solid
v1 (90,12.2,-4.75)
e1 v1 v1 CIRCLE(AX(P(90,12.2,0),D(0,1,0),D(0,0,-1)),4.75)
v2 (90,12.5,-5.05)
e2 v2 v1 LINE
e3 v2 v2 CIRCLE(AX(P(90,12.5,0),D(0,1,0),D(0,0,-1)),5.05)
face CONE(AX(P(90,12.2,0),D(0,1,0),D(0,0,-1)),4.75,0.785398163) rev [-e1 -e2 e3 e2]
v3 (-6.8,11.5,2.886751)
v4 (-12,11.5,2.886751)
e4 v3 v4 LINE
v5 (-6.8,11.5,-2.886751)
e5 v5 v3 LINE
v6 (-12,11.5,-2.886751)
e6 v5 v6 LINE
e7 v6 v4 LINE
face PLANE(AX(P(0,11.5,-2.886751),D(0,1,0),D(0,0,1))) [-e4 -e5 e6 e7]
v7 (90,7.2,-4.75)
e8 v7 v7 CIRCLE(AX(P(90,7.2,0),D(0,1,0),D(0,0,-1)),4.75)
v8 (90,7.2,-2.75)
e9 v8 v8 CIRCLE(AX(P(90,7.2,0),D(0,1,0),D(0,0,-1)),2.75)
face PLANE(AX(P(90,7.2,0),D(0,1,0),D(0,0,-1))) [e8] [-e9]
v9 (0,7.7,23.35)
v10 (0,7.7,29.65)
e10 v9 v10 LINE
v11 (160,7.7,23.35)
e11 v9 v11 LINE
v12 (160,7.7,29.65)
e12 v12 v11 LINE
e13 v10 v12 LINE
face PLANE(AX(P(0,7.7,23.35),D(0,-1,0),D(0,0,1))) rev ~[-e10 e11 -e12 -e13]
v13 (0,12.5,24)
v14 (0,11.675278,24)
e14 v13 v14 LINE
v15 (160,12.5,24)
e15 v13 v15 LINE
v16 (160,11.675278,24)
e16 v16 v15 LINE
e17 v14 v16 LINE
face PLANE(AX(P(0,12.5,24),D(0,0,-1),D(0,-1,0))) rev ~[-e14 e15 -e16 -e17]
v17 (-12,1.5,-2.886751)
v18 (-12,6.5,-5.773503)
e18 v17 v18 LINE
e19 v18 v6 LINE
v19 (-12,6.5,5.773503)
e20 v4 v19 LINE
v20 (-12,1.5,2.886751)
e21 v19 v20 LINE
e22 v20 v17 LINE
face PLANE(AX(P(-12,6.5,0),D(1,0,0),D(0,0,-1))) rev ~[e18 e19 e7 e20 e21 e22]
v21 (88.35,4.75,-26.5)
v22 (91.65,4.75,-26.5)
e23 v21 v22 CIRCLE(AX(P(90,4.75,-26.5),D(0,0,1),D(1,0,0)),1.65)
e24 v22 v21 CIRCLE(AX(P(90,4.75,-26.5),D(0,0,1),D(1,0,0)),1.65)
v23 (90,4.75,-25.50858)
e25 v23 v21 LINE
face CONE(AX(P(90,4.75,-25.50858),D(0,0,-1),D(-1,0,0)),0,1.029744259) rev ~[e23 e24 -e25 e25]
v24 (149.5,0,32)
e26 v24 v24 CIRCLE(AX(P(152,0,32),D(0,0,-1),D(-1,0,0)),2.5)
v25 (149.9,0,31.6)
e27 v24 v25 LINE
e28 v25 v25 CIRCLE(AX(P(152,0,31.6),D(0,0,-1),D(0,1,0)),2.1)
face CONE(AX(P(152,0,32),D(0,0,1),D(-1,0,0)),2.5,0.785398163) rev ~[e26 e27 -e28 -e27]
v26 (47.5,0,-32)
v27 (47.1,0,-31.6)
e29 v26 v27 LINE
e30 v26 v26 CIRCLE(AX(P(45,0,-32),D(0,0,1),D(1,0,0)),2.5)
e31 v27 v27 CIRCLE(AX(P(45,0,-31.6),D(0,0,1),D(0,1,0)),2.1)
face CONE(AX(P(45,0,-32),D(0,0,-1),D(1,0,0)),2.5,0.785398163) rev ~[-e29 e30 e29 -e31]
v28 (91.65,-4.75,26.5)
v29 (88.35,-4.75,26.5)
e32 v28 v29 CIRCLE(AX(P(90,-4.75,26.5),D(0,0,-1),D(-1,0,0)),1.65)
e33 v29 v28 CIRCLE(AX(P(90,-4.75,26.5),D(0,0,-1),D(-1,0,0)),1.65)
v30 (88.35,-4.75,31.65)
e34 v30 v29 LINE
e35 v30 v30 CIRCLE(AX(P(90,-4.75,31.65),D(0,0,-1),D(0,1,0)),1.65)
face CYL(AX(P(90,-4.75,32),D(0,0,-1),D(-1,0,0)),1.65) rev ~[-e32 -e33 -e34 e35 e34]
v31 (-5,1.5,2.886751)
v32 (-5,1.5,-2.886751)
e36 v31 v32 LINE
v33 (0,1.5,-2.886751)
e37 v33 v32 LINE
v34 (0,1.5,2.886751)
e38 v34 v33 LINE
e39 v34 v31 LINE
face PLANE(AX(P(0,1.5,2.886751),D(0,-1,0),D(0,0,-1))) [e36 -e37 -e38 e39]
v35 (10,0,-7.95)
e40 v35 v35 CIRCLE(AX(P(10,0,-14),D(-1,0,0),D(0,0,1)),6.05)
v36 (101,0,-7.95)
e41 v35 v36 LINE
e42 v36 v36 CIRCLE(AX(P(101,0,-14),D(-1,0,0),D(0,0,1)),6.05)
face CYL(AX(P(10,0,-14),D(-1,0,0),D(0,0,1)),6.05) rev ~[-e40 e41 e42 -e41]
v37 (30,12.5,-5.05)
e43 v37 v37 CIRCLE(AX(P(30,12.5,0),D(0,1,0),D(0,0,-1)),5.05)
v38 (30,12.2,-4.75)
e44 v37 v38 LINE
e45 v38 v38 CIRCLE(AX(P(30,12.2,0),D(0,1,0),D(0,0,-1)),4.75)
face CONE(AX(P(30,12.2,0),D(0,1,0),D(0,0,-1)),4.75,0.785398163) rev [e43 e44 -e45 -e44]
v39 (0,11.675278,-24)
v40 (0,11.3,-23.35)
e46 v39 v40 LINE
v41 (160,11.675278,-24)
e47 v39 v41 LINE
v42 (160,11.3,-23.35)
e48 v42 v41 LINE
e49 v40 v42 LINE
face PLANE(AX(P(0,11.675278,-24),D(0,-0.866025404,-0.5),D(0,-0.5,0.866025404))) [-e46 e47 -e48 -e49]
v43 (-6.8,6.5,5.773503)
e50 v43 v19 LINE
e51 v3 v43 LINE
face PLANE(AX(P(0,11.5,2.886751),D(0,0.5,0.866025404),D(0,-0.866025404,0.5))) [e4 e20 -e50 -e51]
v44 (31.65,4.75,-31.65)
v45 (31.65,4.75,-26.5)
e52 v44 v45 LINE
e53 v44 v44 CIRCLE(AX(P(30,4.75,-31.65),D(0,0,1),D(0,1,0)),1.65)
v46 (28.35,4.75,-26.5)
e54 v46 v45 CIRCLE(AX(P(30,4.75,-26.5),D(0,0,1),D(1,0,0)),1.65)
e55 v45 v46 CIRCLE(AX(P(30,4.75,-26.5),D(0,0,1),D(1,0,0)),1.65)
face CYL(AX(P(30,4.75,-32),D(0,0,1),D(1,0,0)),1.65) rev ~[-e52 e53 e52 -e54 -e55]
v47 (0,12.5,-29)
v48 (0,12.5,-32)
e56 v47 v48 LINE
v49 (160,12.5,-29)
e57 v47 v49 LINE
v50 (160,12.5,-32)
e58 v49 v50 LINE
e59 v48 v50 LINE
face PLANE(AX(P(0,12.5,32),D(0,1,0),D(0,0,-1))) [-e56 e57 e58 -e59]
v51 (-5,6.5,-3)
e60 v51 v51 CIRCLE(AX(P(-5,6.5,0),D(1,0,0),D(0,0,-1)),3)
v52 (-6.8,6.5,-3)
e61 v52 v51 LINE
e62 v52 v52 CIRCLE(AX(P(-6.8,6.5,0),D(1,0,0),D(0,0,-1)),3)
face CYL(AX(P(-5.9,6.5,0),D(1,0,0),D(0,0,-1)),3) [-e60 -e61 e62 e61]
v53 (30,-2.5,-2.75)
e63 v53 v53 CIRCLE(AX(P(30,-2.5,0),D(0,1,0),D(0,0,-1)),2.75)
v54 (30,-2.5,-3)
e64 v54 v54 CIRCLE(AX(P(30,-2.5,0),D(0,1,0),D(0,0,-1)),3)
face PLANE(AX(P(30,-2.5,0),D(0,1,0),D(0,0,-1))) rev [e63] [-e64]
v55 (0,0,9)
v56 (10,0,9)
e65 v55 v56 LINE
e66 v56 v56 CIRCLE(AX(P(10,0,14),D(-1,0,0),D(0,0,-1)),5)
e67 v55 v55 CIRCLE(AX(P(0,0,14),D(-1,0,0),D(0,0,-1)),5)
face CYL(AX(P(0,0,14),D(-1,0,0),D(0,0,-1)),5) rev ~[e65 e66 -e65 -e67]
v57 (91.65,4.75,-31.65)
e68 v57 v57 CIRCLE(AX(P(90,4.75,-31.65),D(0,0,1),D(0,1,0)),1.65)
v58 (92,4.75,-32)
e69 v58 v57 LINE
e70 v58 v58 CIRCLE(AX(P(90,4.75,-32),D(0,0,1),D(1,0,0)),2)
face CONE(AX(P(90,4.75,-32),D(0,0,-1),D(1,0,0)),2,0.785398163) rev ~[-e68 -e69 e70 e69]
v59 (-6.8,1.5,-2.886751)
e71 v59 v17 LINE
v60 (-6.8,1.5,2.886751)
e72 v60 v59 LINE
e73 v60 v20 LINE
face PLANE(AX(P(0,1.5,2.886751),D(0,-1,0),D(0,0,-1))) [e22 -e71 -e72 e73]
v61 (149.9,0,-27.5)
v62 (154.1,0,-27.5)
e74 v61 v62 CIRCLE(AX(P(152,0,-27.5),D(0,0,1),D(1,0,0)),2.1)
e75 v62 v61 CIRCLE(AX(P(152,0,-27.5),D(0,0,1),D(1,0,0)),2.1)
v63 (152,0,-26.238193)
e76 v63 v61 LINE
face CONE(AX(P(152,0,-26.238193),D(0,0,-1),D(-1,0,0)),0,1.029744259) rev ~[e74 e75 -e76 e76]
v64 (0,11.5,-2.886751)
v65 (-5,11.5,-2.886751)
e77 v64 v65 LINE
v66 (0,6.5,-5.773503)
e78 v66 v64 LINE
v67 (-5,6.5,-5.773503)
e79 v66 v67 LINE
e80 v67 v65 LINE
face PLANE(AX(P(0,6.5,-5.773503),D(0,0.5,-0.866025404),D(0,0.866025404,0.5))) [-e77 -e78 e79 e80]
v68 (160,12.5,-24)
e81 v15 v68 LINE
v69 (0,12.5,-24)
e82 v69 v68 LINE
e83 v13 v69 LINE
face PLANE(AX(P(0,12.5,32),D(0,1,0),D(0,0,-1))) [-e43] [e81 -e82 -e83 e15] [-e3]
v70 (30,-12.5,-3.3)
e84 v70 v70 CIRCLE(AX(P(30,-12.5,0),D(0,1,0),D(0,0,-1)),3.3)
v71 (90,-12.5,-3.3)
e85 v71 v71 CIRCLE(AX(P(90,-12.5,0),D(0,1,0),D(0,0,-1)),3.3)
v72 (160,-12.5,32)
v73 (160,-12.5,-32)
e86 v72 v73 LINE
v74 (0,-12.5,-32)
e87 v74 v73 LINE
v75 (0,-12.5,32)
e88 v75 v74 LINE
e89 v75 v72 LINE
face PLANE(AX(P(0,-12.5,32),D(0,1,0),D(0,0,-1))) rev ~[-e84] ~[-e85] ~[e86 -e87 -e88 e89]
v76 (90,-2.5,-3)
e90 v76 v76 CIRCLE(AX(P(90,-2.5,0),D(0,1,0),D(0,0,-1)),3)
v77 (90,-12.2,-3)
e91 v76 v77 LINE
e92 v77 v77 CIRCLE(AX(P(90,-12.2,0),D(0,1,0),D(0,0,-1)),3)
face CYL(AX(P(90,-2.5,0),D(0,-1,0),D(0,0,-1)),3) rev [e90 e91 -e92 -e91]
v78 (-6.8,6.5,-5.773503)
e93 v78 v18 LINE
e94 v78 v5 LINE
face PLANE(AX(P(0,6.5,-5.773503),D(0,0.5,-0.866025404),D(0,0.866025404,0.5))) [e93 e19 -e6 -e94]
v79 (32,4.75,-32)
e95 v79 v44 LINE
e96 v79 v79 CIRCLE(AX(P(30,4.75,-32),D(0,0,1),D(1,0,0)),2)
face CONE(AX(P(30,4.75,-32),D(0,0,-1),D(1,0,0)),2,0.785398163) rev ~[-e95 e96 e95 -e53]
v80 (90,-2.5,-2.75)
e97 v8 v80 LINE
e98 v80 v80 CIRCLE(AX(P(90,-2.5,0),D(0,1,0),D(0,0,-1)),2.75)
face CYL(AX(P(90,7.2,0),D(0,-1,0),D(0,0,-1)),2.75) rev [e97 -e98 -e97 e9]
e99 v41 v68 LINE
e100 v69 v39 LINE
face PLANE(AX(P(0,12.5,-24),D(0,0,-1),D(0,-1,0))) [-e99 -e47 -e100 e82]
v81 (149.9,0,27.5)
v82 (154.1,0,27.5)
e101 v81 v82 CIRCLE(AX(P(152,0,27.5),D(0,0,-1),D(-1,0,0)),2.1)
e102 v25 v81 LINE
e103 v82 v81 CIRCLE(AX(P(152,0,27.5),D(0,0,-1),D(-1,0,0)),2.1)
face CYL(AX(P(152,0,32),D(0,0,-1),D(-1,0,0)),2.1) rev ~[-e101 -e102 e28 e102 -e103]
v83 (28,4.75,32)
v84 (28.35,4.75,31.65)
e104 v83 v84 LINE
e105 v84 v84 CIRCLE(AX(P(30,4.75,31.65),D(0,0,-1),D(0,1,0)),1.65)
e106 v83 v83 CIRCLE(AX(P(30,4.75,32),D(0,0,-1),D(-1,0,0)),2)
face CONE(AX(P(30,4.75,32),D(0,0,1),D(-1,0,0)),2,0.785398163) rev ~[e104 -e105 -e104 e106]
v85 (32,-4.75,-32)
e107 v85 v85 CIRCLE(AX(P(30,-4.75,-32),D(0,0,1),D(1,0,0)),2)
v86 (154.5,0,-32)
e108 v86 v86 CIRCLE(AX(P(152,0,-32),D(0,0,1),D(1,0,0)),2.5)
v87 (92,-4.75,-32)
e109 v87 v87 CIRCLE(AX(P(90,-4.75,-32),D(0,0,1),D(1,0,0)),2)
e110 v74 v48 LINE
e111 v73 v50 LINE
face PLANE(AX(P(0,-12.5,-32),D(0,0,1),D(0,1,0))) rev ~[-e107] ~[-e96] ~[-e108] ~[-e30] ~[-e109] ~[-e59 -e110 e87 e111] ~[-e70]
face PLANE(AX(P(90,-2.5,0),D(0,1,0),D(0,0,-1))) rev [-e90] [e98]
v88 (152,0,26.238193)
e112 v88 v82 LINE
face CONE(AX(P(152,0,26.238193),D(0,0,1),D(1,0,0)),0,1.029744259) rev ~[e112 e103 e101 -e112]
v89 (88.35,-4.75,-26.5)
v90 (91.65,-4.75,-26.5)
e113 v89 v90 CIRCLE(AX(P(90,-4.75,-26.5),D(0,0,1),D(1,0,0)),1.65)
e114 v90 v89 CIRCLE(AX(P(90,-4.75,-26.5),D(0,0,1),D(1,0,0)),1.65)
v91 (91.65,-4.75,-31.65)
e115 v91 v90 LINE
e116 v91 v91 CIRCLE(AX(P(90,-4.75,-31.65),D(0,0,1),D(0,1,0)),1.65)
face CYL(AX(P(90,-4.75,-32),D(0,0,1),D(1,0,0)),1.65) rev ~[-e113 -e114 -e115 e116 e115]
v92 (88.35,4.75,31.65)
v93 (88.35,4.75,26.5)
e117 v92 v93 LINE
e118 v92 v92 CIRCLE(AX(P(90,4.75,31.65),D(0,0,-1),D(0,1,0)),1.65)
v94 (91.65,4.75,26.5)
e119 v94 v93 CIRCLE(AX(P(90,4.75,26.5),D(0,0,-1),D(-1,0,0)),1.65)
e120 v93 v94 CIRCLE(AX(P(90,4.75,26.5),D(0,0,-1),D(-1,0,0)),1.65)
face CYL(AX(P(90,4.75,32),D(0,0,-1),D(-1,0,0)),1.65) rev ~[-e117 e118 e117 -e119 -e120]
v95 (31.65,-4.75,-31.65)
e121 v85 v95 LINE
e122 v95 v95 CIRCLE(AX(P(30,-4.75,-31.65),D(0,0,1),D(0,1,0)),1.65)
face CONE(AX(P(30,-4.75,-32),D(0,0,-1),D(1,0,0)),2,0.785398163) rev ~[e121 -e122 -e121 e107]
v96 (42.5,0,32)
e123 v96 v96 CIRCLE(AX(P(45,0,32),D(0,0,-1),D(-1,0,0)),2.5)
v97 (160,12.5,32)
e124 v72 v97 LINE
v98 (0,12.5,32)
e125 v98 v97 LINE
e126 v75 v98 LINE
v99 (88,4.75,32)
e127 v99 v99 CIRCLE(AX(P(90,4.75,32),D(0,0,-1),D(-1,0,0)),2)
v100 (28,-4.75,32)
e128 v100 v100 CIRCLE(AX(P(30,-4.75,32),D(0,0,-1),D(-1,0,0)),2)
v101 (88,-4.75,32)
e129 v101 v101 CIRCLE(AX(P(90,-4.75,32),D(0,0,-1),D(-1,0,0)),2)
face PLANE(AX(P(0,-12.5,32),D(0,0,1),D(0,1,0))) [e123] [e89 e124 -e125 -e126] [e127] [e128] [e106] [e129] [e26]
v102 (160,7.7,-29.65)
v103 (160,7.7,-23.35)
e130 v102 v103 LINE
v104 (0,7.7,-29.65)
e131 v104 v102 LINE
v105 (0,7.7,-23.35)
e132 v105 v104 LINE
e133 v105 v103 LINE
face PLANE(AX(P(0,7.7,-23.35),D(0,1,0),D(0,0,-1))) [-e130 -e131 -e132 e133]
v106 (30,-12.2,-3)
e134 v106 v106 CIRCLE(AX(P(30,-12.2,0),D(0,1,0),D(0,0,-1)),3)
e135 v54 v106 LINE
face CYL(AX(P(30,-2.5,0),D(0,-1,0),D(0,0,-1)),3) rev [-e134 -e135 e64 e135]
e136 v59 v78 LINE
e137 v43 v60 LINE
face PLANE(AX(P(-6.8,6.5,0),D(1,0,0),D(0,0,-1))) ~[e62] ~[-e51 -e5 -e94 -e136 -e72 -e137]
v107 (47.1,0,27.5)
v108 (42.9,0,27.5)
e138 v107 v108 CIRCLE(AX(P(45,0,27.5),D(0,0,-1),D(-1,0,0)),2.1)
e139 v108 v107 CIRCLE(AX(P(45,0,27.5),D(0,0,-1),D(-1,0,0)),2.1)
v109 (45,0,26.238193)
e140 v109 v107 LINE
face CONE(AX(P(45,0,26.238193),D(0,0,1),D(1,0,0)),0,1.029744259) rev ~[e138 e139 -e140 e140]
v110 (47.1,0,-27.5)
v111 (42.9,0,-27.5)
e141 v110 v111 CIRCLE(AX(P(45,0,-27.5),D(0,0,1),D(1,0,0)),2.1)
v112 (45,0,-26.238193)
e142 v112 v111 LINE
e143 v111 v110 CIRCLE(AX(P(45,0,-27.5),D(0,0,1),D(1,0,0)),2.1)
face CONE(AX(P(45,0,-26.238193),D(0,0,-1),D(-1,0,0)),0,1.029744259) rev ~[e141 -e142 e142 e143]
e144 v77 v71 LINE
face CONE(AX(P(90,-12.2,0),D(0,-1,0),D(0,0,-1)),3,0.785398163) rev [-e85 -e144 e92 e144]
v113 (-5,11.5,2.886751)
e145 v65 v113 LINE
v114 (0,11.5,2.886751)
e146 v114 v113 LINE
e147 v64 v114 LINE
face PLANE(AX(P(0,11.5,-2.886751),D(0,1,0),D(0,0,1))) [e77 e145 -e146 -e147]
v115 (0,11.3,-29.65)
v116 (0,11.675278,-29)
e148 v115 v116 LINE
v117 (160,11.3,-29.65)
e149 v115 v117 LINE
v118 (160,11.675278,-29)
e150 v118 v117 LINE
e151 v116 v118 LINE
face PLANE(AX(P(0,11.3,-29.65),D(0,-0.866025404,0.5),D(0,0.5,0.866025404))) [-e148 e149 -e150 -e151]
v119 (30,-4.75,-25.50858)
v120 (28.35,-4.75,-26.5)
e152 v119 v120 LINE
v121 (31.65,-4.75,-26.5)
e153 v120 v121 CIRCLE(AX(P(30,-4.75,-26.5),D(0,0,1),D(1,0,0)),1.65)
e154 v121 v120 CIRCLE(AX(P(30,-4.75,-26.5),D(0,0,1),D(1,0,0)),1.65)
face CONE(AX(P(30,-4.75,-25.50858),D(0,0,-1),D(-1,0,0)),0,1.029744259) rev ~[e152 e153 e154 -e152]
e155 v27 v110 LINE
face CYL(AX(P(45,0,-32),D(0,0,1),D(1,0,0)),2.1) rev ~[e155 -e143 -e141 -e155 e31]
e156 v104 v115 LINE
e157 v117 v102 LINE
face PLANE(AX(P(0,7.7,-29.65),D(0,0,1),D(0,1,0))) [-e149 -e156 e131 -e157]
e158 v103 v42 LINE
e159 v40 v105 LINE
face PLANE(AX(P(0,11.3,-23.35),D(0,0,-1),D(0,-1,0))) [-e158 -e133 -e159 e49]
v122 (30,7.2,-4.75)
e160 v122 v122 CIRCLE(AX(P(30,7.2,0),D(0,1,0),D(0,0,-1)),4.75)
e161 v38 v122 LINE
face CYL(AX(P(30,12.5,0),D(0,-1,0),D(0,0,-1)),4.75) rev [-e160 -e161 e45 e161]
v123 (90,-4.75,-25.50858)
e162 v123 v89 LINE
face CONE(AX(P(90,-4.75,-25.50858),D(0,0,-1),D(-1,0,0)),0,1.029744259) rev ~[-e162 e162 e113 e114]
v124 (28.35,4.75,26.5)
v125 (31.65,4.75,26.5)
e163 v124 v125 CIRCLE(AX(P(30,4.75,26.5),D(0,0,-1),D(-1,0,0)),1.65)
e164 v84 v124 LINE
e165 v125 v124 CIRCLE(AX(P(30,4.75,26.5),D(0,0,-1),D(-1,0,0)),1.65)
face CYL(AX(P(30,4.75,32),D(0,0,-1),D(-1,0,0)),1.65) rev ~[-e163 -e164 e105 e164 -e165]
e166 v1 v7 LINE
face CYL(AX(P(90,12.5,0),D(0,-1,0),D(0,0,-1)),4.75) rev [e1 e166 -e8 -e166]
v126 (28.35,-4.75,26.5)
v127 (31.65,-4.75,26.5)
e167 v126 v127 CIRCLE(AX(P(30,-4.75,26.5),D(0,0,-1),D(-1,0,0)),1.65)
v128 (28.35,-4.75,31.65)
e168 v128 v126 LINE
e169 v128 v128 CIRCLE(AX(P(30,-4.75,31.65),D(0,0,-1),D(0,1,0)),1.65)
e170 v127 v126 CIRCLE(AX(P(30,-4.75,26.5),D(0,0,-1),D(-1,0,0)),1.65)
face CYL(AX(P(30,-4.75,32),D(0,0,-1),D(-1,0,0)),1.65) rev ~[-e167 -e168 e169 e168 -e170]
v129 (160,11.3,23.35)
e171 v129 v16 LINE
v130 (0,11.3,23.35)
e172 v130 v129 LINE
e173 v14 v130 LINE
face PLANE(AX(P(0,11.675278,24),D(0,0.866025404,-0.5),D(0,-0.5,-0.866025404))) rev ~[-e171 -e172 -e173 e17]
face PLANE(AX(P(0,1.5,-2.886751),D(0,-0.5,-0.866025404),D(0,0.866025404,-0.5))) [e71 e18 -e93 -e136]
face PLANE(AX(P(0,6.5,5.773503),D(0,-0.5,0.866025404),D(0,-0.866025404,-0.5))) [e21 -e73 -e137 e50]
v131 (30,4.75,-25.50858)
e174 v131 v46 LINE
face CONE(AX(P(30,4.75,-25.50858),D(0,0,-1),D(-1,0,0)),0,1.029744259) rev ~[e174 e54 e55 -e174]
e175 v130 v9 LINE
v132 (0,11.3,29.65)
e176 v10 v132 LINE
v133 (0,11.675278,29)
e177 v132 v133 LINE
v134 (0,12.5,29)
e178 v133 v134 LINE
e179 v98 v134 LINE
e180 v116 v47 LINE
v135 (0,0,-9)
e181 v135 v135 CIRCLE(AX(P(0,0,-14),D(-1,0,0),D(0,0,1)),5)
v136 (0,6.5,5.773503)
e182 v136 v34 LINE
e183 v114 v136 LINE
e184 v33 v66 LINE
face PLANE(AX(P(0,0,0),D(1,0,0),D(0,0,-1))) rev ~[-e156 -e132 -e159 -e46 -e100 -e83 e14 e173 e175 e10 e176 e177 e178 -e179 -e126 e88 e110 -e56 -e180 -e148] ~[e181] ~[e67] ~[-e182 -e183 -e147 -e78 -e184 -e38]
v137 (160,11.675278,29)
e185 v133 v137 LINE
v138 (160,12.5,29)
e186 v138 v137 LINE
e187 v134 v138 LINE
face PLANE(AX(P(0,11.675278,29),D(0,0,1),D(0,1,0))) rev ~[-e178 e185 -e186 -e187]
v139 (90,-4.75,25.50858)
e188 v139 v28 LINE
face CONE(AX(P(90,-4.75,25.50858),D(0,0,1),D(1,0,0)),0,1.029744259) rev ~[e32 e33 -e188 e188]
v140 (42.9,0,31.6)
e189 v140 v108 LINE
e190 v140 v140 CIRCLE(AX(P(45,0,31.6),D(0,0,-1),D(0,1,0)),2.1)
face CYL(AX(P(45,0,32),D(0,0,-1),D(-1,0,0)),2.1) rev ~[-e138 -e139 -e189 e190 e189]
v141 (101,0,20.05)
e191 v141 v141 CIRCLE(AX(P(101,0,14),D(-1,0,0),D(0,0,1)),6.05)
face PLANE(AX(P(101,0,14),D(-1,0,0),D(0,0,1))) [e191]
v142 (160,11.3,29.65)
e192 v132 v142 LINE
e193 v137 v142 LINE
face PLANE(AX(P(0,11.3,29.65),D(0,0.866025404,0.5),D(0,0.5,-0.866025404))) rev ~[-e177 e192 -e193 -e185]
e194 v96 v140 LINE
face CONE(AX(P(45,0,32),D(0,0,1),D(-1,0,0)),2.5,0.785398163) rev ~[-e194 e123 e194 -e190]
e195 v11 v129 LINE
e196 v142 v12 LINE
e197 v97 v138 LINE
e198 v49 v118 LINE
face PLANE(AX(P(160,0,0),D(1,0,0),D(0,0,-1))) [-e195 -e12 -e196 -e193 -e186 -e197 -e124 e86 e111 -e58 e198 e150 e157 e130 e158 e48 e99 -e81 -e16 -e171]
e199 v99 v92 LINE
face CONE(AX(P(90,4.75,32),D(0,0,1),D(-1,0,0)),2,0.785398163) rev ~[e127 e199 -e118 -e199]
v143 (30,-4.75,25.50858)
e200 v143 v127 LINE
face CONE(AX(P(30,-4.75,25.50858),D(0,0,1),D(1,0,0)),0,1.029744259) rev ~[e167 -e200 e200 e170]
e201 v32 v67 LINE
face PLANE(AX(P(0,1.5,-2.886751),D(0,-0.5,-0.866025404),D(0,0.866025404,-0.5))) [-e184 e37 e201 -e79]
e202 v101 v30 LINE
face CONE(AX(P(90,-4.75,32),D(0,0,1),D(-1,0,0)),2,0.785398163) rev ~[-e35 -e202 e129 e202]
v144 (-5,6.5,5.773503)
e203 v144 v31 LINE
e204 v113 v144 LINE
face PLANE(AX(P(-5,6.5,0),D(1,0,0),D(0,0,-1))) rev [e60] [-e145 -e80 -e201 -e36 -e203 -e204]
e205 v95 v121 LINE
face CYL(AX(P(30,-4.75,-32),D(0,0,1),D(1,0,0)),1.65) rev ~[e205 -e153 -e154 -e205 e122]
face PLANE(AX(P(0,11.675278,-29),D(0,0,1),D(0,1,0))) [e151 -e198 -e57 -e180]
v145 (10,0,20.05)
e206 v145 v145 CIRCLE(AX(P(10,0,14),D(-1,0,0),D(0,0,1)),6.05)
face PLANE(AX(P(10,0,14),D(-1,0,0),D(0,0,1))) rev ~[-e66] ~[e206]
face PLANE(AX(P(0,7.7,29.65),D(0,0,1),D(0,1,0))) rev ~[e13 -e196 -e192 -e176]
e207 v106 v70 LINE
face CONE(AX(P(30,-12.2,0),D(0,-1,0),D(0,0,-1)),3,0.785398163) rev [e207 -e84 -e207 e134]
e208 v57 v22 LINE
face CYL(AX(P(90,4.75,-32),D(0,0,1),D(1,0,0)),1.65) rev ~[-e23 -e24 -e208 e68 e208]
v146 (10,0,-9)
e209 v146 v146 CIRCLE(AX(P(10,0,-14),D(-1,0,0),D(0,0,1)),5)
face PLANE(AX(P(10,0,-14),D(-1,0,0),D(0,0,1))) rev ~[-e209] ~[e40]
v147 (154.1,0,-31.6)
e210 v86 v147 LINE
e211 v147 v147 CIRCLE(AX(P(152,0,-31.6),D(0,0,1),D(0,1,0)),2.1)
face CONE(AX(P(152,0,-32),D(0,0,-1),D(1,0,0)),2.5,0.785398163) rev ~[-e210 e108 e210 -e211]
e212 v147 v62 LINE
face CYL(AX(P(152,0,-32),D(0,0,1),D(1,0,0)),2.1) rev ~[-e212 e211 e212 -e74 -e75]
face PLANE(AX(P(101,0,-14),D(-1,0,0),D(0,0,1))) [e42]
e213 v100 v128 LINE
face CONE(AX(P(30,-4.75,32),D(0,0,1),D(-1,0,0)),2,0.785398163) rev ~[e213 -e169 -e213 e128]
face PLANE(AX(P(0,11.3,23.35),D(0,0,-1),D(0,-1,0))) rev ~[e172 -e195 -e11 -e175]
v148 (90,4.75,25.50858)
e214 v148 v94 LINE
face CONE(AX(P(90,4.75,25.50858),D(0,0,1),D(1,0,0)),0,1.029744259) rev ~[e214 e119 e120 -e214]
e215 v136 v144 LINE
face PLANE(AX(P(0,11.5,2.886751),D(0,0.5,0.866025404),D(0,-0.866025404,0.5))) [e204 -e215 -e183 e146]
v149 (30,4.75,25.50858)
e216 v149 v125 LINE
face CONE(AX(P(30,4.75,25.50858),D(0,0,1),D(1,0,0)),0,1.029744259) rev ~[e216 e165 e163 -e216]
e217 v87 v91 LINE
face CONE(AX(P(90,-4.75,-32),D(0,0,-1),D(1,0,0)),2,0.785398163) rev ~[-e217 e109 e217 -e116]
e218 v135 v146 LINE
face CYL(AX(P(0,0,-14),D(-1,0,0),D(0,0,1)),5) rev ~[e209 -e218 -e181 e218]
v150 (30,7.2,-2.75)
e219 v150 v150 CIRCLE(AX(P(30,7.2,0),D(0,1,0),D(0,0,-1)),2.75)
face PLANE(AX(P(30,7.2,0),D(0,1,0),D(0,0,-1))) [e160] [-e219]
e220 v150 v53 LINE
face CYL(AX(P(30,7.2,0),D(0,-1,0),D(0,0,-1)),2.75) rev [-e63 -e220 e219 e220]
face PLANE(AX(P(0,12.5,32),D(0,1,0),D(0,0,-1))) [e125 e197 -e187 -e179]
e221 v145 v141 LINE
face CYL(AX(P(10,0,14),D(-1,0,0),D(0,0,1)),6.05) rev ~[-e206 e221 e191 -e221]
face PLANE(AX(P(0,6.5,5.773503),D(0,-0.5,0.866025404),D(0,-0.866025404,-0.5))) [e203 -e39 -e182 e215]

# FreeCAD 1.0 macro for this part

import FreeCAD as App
import Part
import Sketcher
from FreeCAD import Vector
Q = App.Units.Quantity


def edges_at(feature, points):
    """Names of the edges that pass closest to the given points."""
    edges = feature.Shape.Edges
    near = lambda p: min(range(len(edges)), key=lambda i: edges[i].distToShape(Part.Vertex(*p))[0])
    return sorted({f"Edge{near(p) + 1}" for p in points})

doc = App.newDocument("Part")
params = doc.addObject("Spreadsheet::Sheet", "Params")
for row, (alias, value) in enumerate([
    ("sketch1_width", "25 mm"),
    ("sketch1_height", "64 mm"),
    ("pad1_length", "160 mm"),
    ("sketch2_diameter", "10 mm"),
    ("pocket1_length", "10 mm"),
    ("sketch3_diameter", "12.1 mm"),
    ("pocket2_length", "91 mm"),
    ("sketch4_height", "5 mm"),
    ("sketch4_width", "3.6 mm"),
    ("sketch4_height2", "6.3 mm"),
    ("sketch5_width", "2 mm"),
    ("sketch5_height", "25 mm"),
    ("sketch5_height2", "5.3 mm"),
    ("sketch5_width2", "4.75 mm"),
    ("groove_angle", "360 deg"),
    ("chamfer_size", "0.3 mm"),
    ("linearpattern_pitch", "60 mm"),
    ("chamfer2_size", "0.3 mm"),
    ("sketch6_width", "1 mm"),
    ("sketch6_width2", "9.7 mm"),
    ("sketch6_height", "3.3 mm"),
    ("sketch6_height2", "0.25 mm"),
    ("groove2_angle", "360 deg"),
    ("linearpattern2_pitch", "60 mm"),
    ("pad2_length", "12 mm"),
    ("sketch8_height", "25 mm"),
    ("sketch8_width", "1.8 mm"),
    ("groove3_angle", "360 deg"),
    ("sketch9_diameter", "4.2 mm"),
    ("hole_diameter", "4.2 mm"),
    ("hole_depth", "4.5 mm"),
    ("hole_csink_diameter", "5 mm"),
    ("sketch10_diameter", "4.2 mm"),
    ("hole2_diameter", "4.2 mm"),
    ("hole2_depth", "4.5 mm"),
    ("hole2_csink_diameter", "5 mm"),
    ("sketch11_diameter", "3.3 mm"),
    ("hole3_diameter", "3.3 mm"),
    ("hole3_depth", "5.5 mm"),
    ("hole3_csink_diameter", "4 mm"),
    ("sketch12_diameter", "3.3 mm"),
    ("hole4_diameter", "3.3 mm"),
    ("hole4_depth", "5.5 mm"),
    ("hole4_csink_diameter", "4 mm"),
    ("sketch13_diameter", "3.3 mm"),
    ("hole5_diameter", "3.3 mm"),
    ("hole5_depth", "5.5 mm"),
    ("hole5_csink_diameter", "4 mm"),
    ("sketch14_diameter", "3.3 mm"),
    ("hole6_diameter", "3.3 mm"),
    ("hole6_depth", "5.5 mm"),
    ("hole6_csink_diameter", "4 mm"),
], start=1):
    params.set(f"A{row}", alias)
    params.set(f"B{row}", "=" + value)
    params.setAlias(f"B{row}", alias)

body = doc.addObject("PartDesign::Body", "Body")

# Sketch on YZ plane
sketch1 = body.newObject("Sketcher::SketchObject", "Sketch")
sketch1.AttachmentSupport = (doc.getObject("YZ_Plane"), [""])
sketch1.MapMode = "FlatFace"
sketch1.addGeometry([
    Part.LineSegment(Vector(12, 32, 0), Vector(-12, 32, 0)),
    Part.LineSegment(Vector(-12, 32, 0), Vector(-12, -32, 0)),
    Part.LineSegment(Vector(-12, -32, 0), Vector(12, -32, 0)),
    Part.LineSegment(Vector(12, -32, 0), Vector(12, 32, 0)),
], False)
sketch1.addConstraint([
    Sketcher.Constraint("Coincident", 0, 2, 1, 1),
    Sketcher.Constraint("Coincident", 1, 2, 2, 1),
    Sketcher.Constraint("Coincident", 2, 2, 3, 1),
    Sketcher.Constraint("Coincident", 3, 2, 0, 1),
    Sketcher.Constraint("Horizontal", 0),
    Sketcher.Constraint("Vertical", 1),
    Sketcher.Constraint("Horizontal", 2),
    Sketcher.Constraint("Vertical", 3),
    Sketcher.Constraint("Symmetric", 0, 2, 2, 2, -1, 1),
    Sketcher.Constraint("DistanceX", 0, 2, 0, 1, Q("25 mm")),
    Sketcher.Constraint("DistanceY", 1, 2, 1, 1, Q("64 mm")),
])
sketch1.setExpression("Constraints[9]", "Params.sketch1_width")
sketch1.setExpression("Constraints[10]", "Params.sketch1_height")
pad1 = body.newObject("PartDesign::Pad", "Pad")
pad1.Profile = sketch1
pad1.setExpression("Length", "Params.pad1_length")

# Sketch on YZ plane
sketch2 = body.newObject("Sketcher::SketchObject", "Sketch001")
sketch2.AttachmentSupport = (doc.getObject("YZ_Plane"), [""])
sketch2.MapMode = "FlatFace"
sketch2.addGeometry([
    Part.Circle(Vector(0, -14, 0), Vector(0, 0, 1), 5),
    Part.Circle(Vector(0, 14, 0), Vector(0, 0, 1), 5),
], False)
sketch2.addConstraint([
    Sketcher.Constraint("Equal", 0, 1),
    Sketcher.Constraint("Symmetric", 0, 3, 1, 3, -1, 1),
    Sketcher.Constraint("PointOnObject", 0, 3, -2),
    Sketcher.Constraint("Diameter", 0, Q("10 mm")),
    Sketcher.Constraint("DistanceY", 0, 3, -1, 1, Q("14 mm")),
])
sketch2.setExpression("Constraints[3]", "Params.sketch2_diameter")
pocket1 = body.newObject("PartDesign::Pocket", "Pocket")
pocket1.Profile = sketch2
pocket1.setExpression("Length", "Params.pocket1_length")
pocket1.Reversed = True

# Sketch on YZ plane
sketch3 = body.newObject("Sketcher::SketchObject", "Sketch002")
sketch3.AttachmentSupport = (doc.getObject("YZ_Plane"), [""])
sketch3.MapMode = "FlatFace"
sketch3.AttachmentOffset = App.Placement(Vector(0, 0, 10), App.Rotation())
sketch3.addGeometry([
    Part.Circle(Vector(0, 14, 0), Vector(0, 0, 1), 6),
    Part.Circle(Vector(0, -14, 0), Vector(0, 0, 1), 6),
], False)
sketch3.addConstraint([
    Sketcher.Constraint("Equal", 0, 1),
    Sketcher.Constraint("Symmetric", 0, 3, 1, 3, -1, 1),
    Sketcher.Constraint("PointOnObject", 0, 3, -2),
    Sketcher.Constraint("Diameter", 0, Q("12.1 mm")),
    Sketcher.Constraint("DistanceY", -1, 1, 0, 3, Q("14 mm")),
])
sketch3.setExpression("Constraints[3]", "Params.sketch3_diameter")
pocket2 = body.newObject("PartDesign::Pocket", "Pocket001")
pocket2.Profile = sketch3
pocket2.setExpression("Length", "Params.pocket2_length")
pocket2.Reversed = True

# Sketch on YZ plane
sketch4 = body.newObject("Sketcher::SketchObject", "Sketch003")
sketch4.AttachmentSupport = (doc.getObject("YZ_Plane"), [""])
sketch4.MapMode = "FlatFace"
sketch4.addGeometry([
    Part.LineSegment(Vector(7.7, 23.4, 0), Vector(7.7, 29.6, 0)),  # 0
    Part.LineSegment(Vector(7.7, 29.6, 0), Vector(11.3, 29.6, 0)),  # 1
    Part.LineSegment(Vector(11.3, 29.6, 0), Vector(11.7, 29, 0)),  # 2
    Part.LineSegment(Vector(11.7, 29, 0), Vector(12.5, 29, 0)),  # 3
    Part.LineSegment(Vector(12.5, 29, 0), Vector(12.5, 24, 0)),  # 4
    Part.LineSegment(Vector(12.5, 24, 0), Vector(11.7, 24, 0)),  # 5
    Part.LineSegment(Vector(11.7, 24, 0), Vector(11.3, 23.4, 0)),  # 6
    Part.LineSegment(Vector(11.3, 23.4, 0), Vector(7.7, 23.4, 0)),  # 7
    Part.LineSegment(Vector(7.7, -23.4, 0), Vector(11.3, -23.4, 0)),  # 8
    Part.LineSegment(Vector(11.3, -23.4, 0), Vector(11.7, -24, 0)),  # 9
    Part.LineSegment(Vector(11.7, -24, 0), Vector(12.5, -24, 0)),  # 10
    Part.LineSegment(Vector(12.5, -24, 0), Vector(12.5, -29, 0)),  # 11
    Part.LineSegment(Vector(12.5, -29, 0), Vector(11.7, -29, 0)),  # 12
    Part.LineSegment(Vector(11.7, -29, 0), Vector(11.3, -29.6, 0)),  # 13
    Part.LineSegment(Vector(11.3, -29.6, 0), Vector(7.7, -29.6, 0)),  # 14
    Part.LineSegment(Vector(7.7, -29.6, 0), Vector(7.7, -23.4, 0)),  # 15
], False)
sketch4.addConstraint([
    Sketcher.Constraint("Coincident", 0, 2, 1, 1),
    Sketcher.Constraint("Coincident", 1, 2, 2, 1),
    Sketcher.Constraint("Coincident", 2, 2, 3, 1),
    Sketcher.Constraint("Coincident", 3, 2, 4, 1),
    Sketcher.Constraint("Coincident", 4, 2, 5, 1),
    Sketcher.Constraint("Coincident", 5, 2, 6, 1),
    Sketcher.Constraint("Coincident", 6, 2, 7, 1),
    Sketcher.Constraint("Coincident", 7, 2, 0, 1),
    Sketcher.Constraint("Coincident", 8, 2, 9, 1),
    Sketcher.Constraint("Coincident", 9, 2, 10, 1),
    Sketcher.Constraint("Coincident", 10, 2, 11, 1),
    Sketcher.Constraint("Coincident", 11, 2, 12, 1),
    Sketcher.Constraint("Coincident", 12, 2, 13, 1),
    Sketcher.Constraint("Coincident", 13, 2, 14, 1),
    Sketcher.Constraint("Coincident", 14, 2, 15, 1),
    Sketcher.Constraint("Coincident", 15, 2, 8, 1),
    Sketcher.Constraint("Vertical", 0),
    Sketcher.Constraint("Horizontal", 1),
    Sketcher.Constraint("Horizontal", 3),
    Sketcher.Constraint("Vertical", 4),
    Sketcher.Constraint("Horizontal", 5),
    Sketcher.Constraint("Horizontal", 7),
    Sketcher.Constraint("Horizontal", 8),
    Sketcher.Constraint("Horizontal", 10),
    Sketcher.Constraint("Vertical", 11),
    Sketcher.Constraint("Horizontal", 12),
    Sketcher.Constraint("Horizontal", 14),
    Sketcher.Constraint("Vertical", 15),
    Sketcher.Constraint("Symmetric", 6, 2, 8, 2, -1),
    Sketcher.Constraint("Symmetric", 5, 2, 9, 2, -1),
    Sketcher.Constraint("Symmetric", 3, 2, 11, 2, -1),
    Sketcher.Constraint("Symmetric", 1, 2, 13, 2, -1),
    Sketcher.Constraint("Parallel", 2, 9),
    Sketcher.Constraint("Parallel", 6, 13),
    Sketcher.Constraint("Vertical", 2, 2, 5, 2),
    Sketcher.Constraint("Vertical", 1, 2, 6, 2),
    Sketcher.Constraint("Vertical", 7, 2, 14, 2),
    Sketcher.Constraint("DistanceY", 4, 2, 4, 1, Q("5 mm")),
    Sketcher.Constraint("Angle", 2, Q("-60 deg")),
    Sketcher.Constraint("DistanceX", 1, 1, 1, 2, Q("3.6 mm")),
    Sketcher.Constraint("DistanceY", 0, 1, 0, 2, Q("6.3 mm")),
    Sketcher.Constraint("DistanceY", -1, 1, 2, 2, Q("29 mm")),
    Sketcher.Constraint("DistanceX", -1, 1, 0, 2, Q("7.7 mm")),
    Sketcher.Constraint("DistanceX", -1, 1, 3, 2, Q("12.5 mm")),
])
sketch4.setExpression("Constraints[37]", "Params.sketch4_height")
sketch4.setExpression("Constraints[39]", "Params.sketch4_width")
sketch4.setExpression("Constraints[40]", "Params.sketch4_height2")
pocket3 = body.newObject("PartDesign::Pocket", "Pocket002")
pocket3.Profile = sketch4
pocket3.Type = "ThroughAll"
pocket3.Reversed = True

# Sketch on XY plane
sketch5 = body.newObject("Sketcher::SketchObject", "Sketch004")
sketch5.AttachmentSupport = (doc.getObject("XY_Plane"), [""])
sketch5.MapMode = "FlatFace"
sketch5.addGeometry([
    Part.LineSegment(Vector(30, 12.5, 0), Vector(25.2, 12.5, 0)),  # 0
    Part.LineSegment(Vector(25.2, 12.5, 0), Vector(25.2, 7.2, 0)),  # 1
    Part.LineSegment(Vector(25.2, 7.2, 0), Vector(27.2, 7.2, 0)),  # 2
    Part.LineSegment(Vector(27.2, 7.2, 0), Vector(27.2, -12.5, 0)),  # 3
    Part.LineSegment(Vector(27.2, -12.5, 0), Vector(30, -12.5, 0)),  # 4
    Part.LineSegment(Vector(30, -12.5, 0), Vector(30, 12.5, 0)),  # 5
], False)
sketch5.addGeometry(Part.LineSegment(Vector(30, -12.5, 0), Vector(30, 12.5, 0)), True)  # axis
sketch5.addConstraint([
    Sketcher.Constraint("Coincident", 0, 2, 1, 1),
    Sketcher.Constraint("Coincident", 1, 2, 2, 1),
    Sketcher.Constraint("Coincident", 2, 2, 3, 1),
    Sketcher.Constraint("Coincident", 3, 2, 4, 1),
    Sketcher.Constraint("Coincident", 4, 2, 5, 1),
    Sketcher.Constraint("Coincident", 5, 2, 0, 1),
    Sketcher.Constraint("Horizontal", 0),
    Sketcher.Constraint("Vertical", 1),
    Sketcher.Constraint("Horizontal", 2),
    Sketcher.Constraint("Vertical", 3),
    Sketcher.Constraint("Horizontal", 4),
    Sketcher.Constraint("Vertical", 5),
    Sketcher.Constraint("Vertical", 6),
    Sketcher.Constraint("Coincident", 6, 1, 4, 2),
    Sketcher.Constraint("Horizontal", 0, 2, 6, 2),
    Sketcher.Constraint("DistanceX", 2, 1, 2, 2, Q("2 mm")),
    Sketcher.Constraint("DistanceY", 5, 1, 5, 2, Q("25 mm")),
    Sketcher.Constraint("DistanceY", 1, 2, 1, 1, Q("5.3 mm")),
    Sketcher.Constraint("DistanceX", -1, 1, 4, 2, Q("30 mm")),
    Sketcher.Constraint("DistanceX", 0, 2, 0, 1, Q("4.75 mm")),
    Sketcher.Constraint("DistanceY", -1, 1, 0, 2, Q("12.5 mm")),
])
sketch5.setExpression("Constraints[15]", "Params.sketch5_width")
sketch5.setExpression("Constraints[16]", "Params.sketch5_height")
sketch5.setExpression("Constraints[17]", "Params.sketch5_height2")
sketch5.setExpression("Constraints[19]", "Params.sketch5_width2")
groove = body.newObject("PartDesign::Groove", "Groove")
groove.Profile = sketch5
groove.ReferenceAxis = (sketch5, ["Axis0"])
groove.setExpression("Angle", "Params.groove_angle")
doc.recompute()

chamfer = body.newObject("PartDesign::Chamfer", "Chamfer")
chamfer.Base = (groove, edges_at(groove, [(30, 12.5, 4.75)]))
chamfer.setExpression("Size", "Params.chamfer_size")
doc.recompute()

linearpattern = body.newObject("PartDesign::LinearPattern", "LinearPattern")
linearpattern.Originals = [groove]
linearpattern.Direction = (doc.getObject("X_Axis"), [""])
linearpattern.Mode = "offset"
linearpattern.setExpression("Offset", "Params.linearpattern_pitch")
linearpattern.Occurrences = 2
body.Tip = linearpattern
doc.recompute()

chamfer2 = body.newObject("PartDesign::Chamfer", "Chamfer001")
chamfer2.Base = (linearpattern, edges_at(linearpattern, [(90, 12.5, 4.75)]))
chamfer2.setExpression("Size", "Params.chamfer2_size")

# Sketch on YZ plane
sketch6 = body.newObject("Sketcher::SketchObject", "Sketch005")
sketch6.AttachmentSupport = (doc.getObject("YZ_Plane"), [""])
sketch6.MapMode = "FlatFace"
sketch6.AttachmentOffset = App.Placement(Vector(0, 0, 30), App.Rotation())
sketch6.addGeometry([
    Part.LineSegment(Vector(0.15, 0, 0), Vector(-12.5, 0, 0)),  # 0
    Part.LineSegment(Vector(-12.5, 0, 0), Vector(-12.5, -3.3, 0)),  # 1
    Part.LineSegment(Vector(-12.5, -3.3, 0), Vector(-12.2, -3, 0)),  # 2
    Part.LineSegment(Vector(-12.2, -3, 0), Vector(-2.5, -3, 0)),  # 3
    Part.LineSegment(Vector(-2.5, -3, 0), Vector(-2.5, -2.75, 0)),  # 4
    Part.LineSegment(Vector(-2.5, -2.75, 0), Vector(-1.5, -2.75, 0)),  # 5
    Part.LineSegment(Vector(-1.5, -2.75, 0), Vector(0.15, 0, 0)),  # 6
], False)
sketch6.addConstraint([
    Sketcher.Constraint("Coincident", 0, 2, 1, 1),
    Sketcher.Constraint("Coincident", 1, 2, 2, 1),
    Sketcher.Constraint("Coincident", 2, 2, 3, 1),
    Sketcher.Constraint("Coincident", 3, 2, 4, 1),
    Sketcher.Constraint("Coincident", 4, 2, 5, 1),
    Sketcher.Constraint("Coincident", 5, 2, 6, 1),
    Sketcher.Constraint("Coincident", 6, 2, 0, 1),
    Sketcher.Constraint("Horizontal", 0),
    Sketcher.Constraint("Vertical", 1),
    Sketcher.Constraint("Horizontal", 3),
    Sketcher.Constraint("Vertical", 4),
    Sketcher.Constraint("Horizontal", 5),
    Sketcher.Constraint("PointOnObject", 0, 2, -1),
    Sketcher.Constraint("DistanceX", 5, 1, 5, 2, Q("1 mm")),
    Sketcher.Constraint("Angle", 2, Q("45 deg")),
    Sketcher.Constraint("Angle", 6, Q("59 deg")),
    Sketcher.Constraint("DistanceX", 3, 1, 3, 2, Q("9.7 mm")),
    Sketcher.Constraint("DistanceY", 1, 2, 1, 1, Q("3.3 mm")),
    Sketcher.Constraint("DistanceY", 2, 2, -1, 1, Q("3 mm")),
    Sketcher.Constraint("DistanceY", 4, 1, 4, 2, Q("0.25 mm")),
    Sketcher.Constraint("DistanceX", 0, 2, -1, 1, Q("12.5 mm")),
])
sketch6.setExpression("Constraints[13]", "Params.sketch6_width")
sketch6.setExpression("Constraints[16]", "Params.sketch6_width2")
sketch6.setExpression("Constraints[17]", "Params.sketch6_height")
sketch6.setExpression("Constraints[19]", "Params.sketch6_height2")
groove2 = body.newObject("PartDesign::Groove", "Groove001")
groove2.Profile = sketch6
groove2.ReferenceAxis = (sketch6, ["H_Axis"])
groove2.setExpression("Angle", "Params.groove2_angle")
doc.recompute()

linearpattern2 = body.newObject("PartDesign::LinearPattern", "LinearPattern001")
linearpattern2.Originals = [groove2]
linearpattern2.Direction = (doc.getObject("X_Axis"), [""])
linearpattern2.Mode = "offset"
linearpattern2.setExpression("Offset", "Params.linearpattern2_pitch")
linearpattern2.Occurrences = 2
body.Tip = linearpattern2

# Sketch on YZ plane
sketch7 = body.newObject("Sketcher::SketchObject", "Sketch006")
sketch7.AttachmentSupport = (doc.getObject("YZ_Plane"), [""])
sketch7.MapMode = "FlatFace"
sketch7.addGeometry([
    Part.LineSegment(Vector(12, 3, 0), Vector(12, -3, 0)),  # 0
    Part.LineSegment(Vector(12, -3, 0), Vector(6, -6, 0)),  # 1
    Part.LineSegment(Vector(6, -6, 0), Vector(2, -3, 0)),  # 2
    Part.LineSegment(Vector(2, -3, 0), Vector(2, 3, 0)),  # 3
    Part.LineSegment(Vector(2, 3, 0), Vector(6, 6, 0)),  # 4
    Part.LineSegment(Vector(6, 6, 0), Vector(12, 3, 0)),  # 5
], False)
sketch7.addConstraint([
    Sketcher.Constraint("Coincident", 0, 2, 1, 1),
    Sketcher.Constraint("Coincident", 1, 2, 2, 1),
    Sketcher.Constraint("Coincident", 2, 2, 3, 1),
    Sketcher.Constraint("Coincident", 3, 2, 4, 1),
    Sketcher.Constraint("Coincident", 4, 2, 5, 1),
    Sketcher.Constraint("Coincident", 5, 2, 0, 1),
    Sketcher.Constraint("Vertical", 0),
    Sketcher.Constraint("Vertical", 3),
    Sketcher.Constraint("Symmetric", 1, 2, 4, 2, -1),
    Sketcher.Constraint("Parallel", 1, 4),
    Sketcher.Constraint("Parallel", 2, 5),
    Sketcher.Constraint("Horizontal", 0, 2, 2, 2),
    Sketcher.Constraint("Horizontal", 3, 2, 5, 2),
    Sketcher.Constraint("Angle", 1, Q("-150 deg")),
    Sketcher.Constraint("DistanceX", 1, 2, 0, 2, Q("5 mm")),
    Sketcher.Constraint("DistanceX", -1, 1, 0, 2, Q("11.5 mm")),
    Sketcher.Constraint("DistanceY", 0, 2, 0, 1, Q("5.773503 mm")),
])
pad2 = body.newObject("PartDesign::Pad", "Pad001")
pad2.Profile = sketch7
pad2.setExpression("Length", "Params.pad2_length")
pad2.Reversed = True

# Sketch on XY plane
sketch8 = body.newObject("Sketcher::SketchObject", "Sketch007")
sketch8.AttachmentSupport = (doc.getObject("XY_Plane"), [""])
sketch8.MapMode = "FlatFace"
sketch8.addGeometry([
    Part.LineSegment(Vector(-6.8, 34.5, 0), Vector(-6.8, 9.5, 0)),
    Part.LineSegment(Vector(-6.8, 9.5, 0), Vector(-5, 9.5, 0)),
    Part.LineSegment(Vector(-5, 9.5, 0), Vector(-5, 34.5, 0)),
    Part.LineSegment(Vector(-5, 34.5, 0), Vector(-6.8, 34.5, 0)),
], False)
sketch8.addGeometry(Part.LineSegment(Vector(-6.8, 6.5, 0), Vector(-5, 6.5, 0)), True)  # axis
sketch8.addConstraint([
    Sketcher.Constraint("Coincident", 0, 2, 1, 1),
    Sketcher.Constraint("Coincident", 1, 2, 2, 1),
    Sketcher.Constraint("Coincident", 2, 2, 3, 1),
    Sketcher.Constraint("Coincident", 3, 2, 0, 1),
    Sketcher.Constraint("Vertical", 0),
    Sketcher.Constraint("Horizontal", 1),
    Sketcher.Constraint("Vertical", 2),
    Sketcher.Constraint("Horizontal", 3),
    Sketcher.Constraint("Horizontal", 4),
    Sketcher.Constraint("Vertical", 3, 2, 4, 1),
    Sketcher.Constraint("Vertical", 2, 2, 4, 2),
    Sketcher.Constraint("DistanceY", 0, 2, 0, 1, Q("25 mm")),
    Sketcher.Constraint("DistanceX", 1, 1, 1, 2, Q("1.8 mm")),
    Sketcher.Constraint("DistanceX", 1, 2, -1, 1, Q("5 mm")),
    Sketcher.Constraint("DistanceY", 4, 1, 0, 2, Q("3 mm")),
    Sketcher.Constraint("DistanceY", -1, 1, 0, 2, Q("9.5 mm")),
])
sketch8.setExpression("Constraints[11]", "Params.sketch8_height")
sketch8.setExpression("Constraints[12]", "Params.sketch8_width")
groove3 = body.newObject("PartDesign::Groove", "Groove002")
groove3.Profile = sketch8
groove3.ReferenceAxis = (sketch8, ["Axis0"])
groove3.setExpression("Angle", "Params.groove3_angle")

# Sketch on XY plane
sketch9 = body.newObject("Sketcher::SketchObject", "Sketch008")
sketch9.AttachmentSupport = (doc.getObject("XY_Plane"), [""])
sketch9.MapMode = "FlatFace"
sketch9.AttachmentOffset = App.Placement(Vector(0, 0, 32), App.Rotation())
sketch9.addGeometry([
    Part.Circle(Vector(45, 0, 0), Vector(0, 0, 1), 2.1),
    Part.Circle(Vector(152, 0, 0), Vector(0, 0, 1), 2.1),
], False)
sketch9.addConstraint([
    Sketcher.Constraint("Equal", 0, 1),
    Sketcher.Constraint("PointOnObject", 0, 3, -1),
    Sketcher.Constraint("PointOnObject", 1, 3, -1),
    Sketcher.Constraint("Diameter", 0, Q("4.2 mm")),
    Sketcher.Constraint("DistanceX", -1, 1, 0, 3, Q("45 mm")),
    Sketcher.Constraint("DistanceX", -1, 1, 1, 3, Q("152 mm")),
])
sketch9.setExpression("Constraints[3]", "Params.sketch9_diameter")
doc.recompute()
hole = body.newObject("PartDesign::Hole", "Hole")
hole.Profile = sketch9
hole.ThreadType = "None"
hole.setExpression("Diameter", "Params.hole_diameter")
hole.DepthType = "Dimension"
hole.setExpression("Depth", "Params.hole_depth")
hole.DrillPoint = "Angled"
hole.DrillPointAngle = 118
hole.HoleCutType = "Countersink"
hole.setExpression("HoleCutDiameter", "Params.hole_csink_diameter")
hole.HoleCutCountersinkAngle = 90

# Sketch on XY plane
sketch10 = body.newObject("Sketcher::SketchObject", "Sketch009")
sketch10.AttachmentSupport = (doc.getObject("XY_Plane"), [""])
sketch10.MapMode = "FlatFace"
sketch10.AttachmentOffset = App.Placement(Vector(0, 0, -32), App.Rotation())
sketch10.addGeometry([
    Part.Circle(Vector(152, 0, 0), Vector(0, 0, 1), 2.1),
    Part.Circle(Vector(45, 0, 0), Vector(0, 0, 1), 2.1),
], False)
sketch10.addConstraint([
    Sketcher.Constraint("Equal", 0, 1),
    Sketcher.Constraint("PointOnObject", 0, 3, -1),
    Sketcher.Constraint("PointOnObject", 1, 3, -1),
    Sketcher.Constraint("Diameter", 0, Q("4.2 mm")),
    Sketcher.Constraint("DistanceX", -1, 1, 0, 3, Q("152 mm")),
    Sketcher.Constraint("DistanceX", -1, 1, 1, 3, Q("45 mm")),
])
sketch10.setExpression("Constraints[3]", "Params.sketch10_diameter")
doc.recompute()
hole2 = body.newObject("PartDesign::Hole", "Hole001")
hole2.Profile = sketch10
hole2.ThreadType = "None"
hole2.setExpression("Diameter", "Params.hole2_diameter")
hole2.DepthType = "Dimension"
hole2.setExpression("Depth", "Params.hole2_depth")
hole2.DrillPoint = "Angled"
hole2.DrillPointAngle = 118
hole2.HoleCutType = "Countersink"
hole2.setExpression("HoleCutDiameter", "Params.hole2_csink_diameter")
hole2.HoleCutCountersinkAngle = 90
hole2.Reversed = True

# Sketch on XY plane
sketch11 = body.newObject("Sketcher::SketchObject", "Sketch010")
sketch11.AttachmentSupport = (doc.getObject("XY_Plane"), [""])
sketch11.MapMode = "FlatFace"
sketch11.AttachmentOffset = App.Placement(Vector(0, 0, 32), App.Rotation())
sketch11.addGeometry([
    Part.Circle(Vector(30, -4.8, 0), Vector(0, 0, 1), 1.6),
    Part.Circle(Vector(90, -4.8, 0), Vector(0, 0, 1), 1.6),
], False)
sketch11.addConstraint([
    Sketcher.Constraint("Equal", 0, 1),
    Sketcher.Constraint("Horizontal", 0, 3, 1, 3),
    Sketcher.Constraint("Diameter", 0, Q("3.3 mm")),
    Sketcher.Constraint("DistanceX", -1, 1, 0, 3, Q("30 mm")),
    Sketcher.Constraint("DistanceX", -1, 1, 1, 3, Q("90 mm")),
    Sketcher.Constraint("DistanceY", 0, 3, -1, 1, Q("4.75 mm")),
])
sketch11.setExpression("Constraints[2]", "Params.sketch11_diameter")
doc.recompute()
hole3 = body.newObject("PartDesign::Hole", "Hole002")
hole3.Profile = sketch11
hole3.ThreadType = "None"
hole3.setExpression("Diameter", "Params.hole3_diameter")
hole3.DepthType = "Dimension"
hole3.setExpression("Depth", "Params.hole3_depth")
hole3.DrillPoint = "Angled"
hole3.DrillPointAngle = 118
hole3.HoleCutType = "Countersink"
hole3.setExpression("HoleCutDiameter", "Params.hole3_csink_diameter")
hole3.HoleCutCountersinkAngle = 90

# Sketch on XY plane
sketch12 = body.newObject("Sketcher::SketchObject", "Sketch011")
sketch12.AttachmentSupport = (doc.getObject("XY_Plane"), [""])
sketch12.MapMode = "FlatFace"
sketch12.AttachmentOffset = App.Placement(Vector(0, 0, -32), App.Rotation())
sketch12.addGeometry([
    Part.Circle(Vector(90, -4.8, 0), Vector(0, 0, 1), 1.6),
    Part.Circle(Vector(30, -4.8, 0), Vector(0, 0, 1), 1.6),
], False)
sketch12.addConstraint([
    Sketcher.Constraint("Equal", 0, 1),
    Sketcher.Constraint("Horizontal", 0, 3, 1, 3),
    Sketcher.Constraint("Diameter", 0, Q("3.3 mm")),
    Sketcher.Constraint("DistanceX", -1, 1, 0, 3, Q("90 mm")),
    Sketcher.Constraint("DistanceX", -1, 1, 1, 3, Q("30 mm")),
    Sketcher.Constraint("DistanceY", 0, 3, -1, 1, Q("4.75 mm")),
])
sketch12.setExpression("Constraints[2]", "Params.sketch12_diameter")
doc.recompute()
hole4 = body.newObject("PartDesign::Hole", "Hole003")
hole4.Profile = sketch12
hole4.ThreadType = "None"
hole4.setExpression("Diameter", "Params.hole4_diameter")
hole4.DepthType = "Dimension"
hole4.setExpression("Depth", "Params.hole4_depth")
hole4.DrillPoint = "Angled"
hole4.DrillPointAngle = 118
hole4.HoleCutType = "Countersink"
hole4.setExpression("HoleCutDiameter", "Params.hole4_csink_diameter")
hole4.HoleCutCountersinkAngle = 90
hole4.Reversed = True

# Sketch on XY plane
sketch13 = body.newObject("Sketcher::SketchObject", "Sketch012")
sketch13.AttachmentSupport = (doc.getObject("XY_Plane"), [""])
sketch13.MapMode = "FlatFace"
sketch13.AttachmentOffset = App.Placement(Vector(0, 0, 32), App.Rotation())
sketch13.addGeometry([
    Part.Circle(Vector(30, 4.8, 0), Vector(0, 0, 1), 1.6),
    Part.Circle(Vector(90, 4.8, 0), Vector(0, 0, 1), 1.6),
], False)
sketch13.addConstraint([
    Sketcher.Constraint("Equal", 0, 1),
    Sketcher.Constraint("Horizontal", 0, 3, 1, 3),
    Sketcher.Constraint("Diameter", 0, Q("3.3 mm")),
    Sketcher.Constraint("DistanceX", -1, 1, 0, 3, Q("30 mm")),
    Sketcher.Constraint("DistanceX", -1, 1, 1, 3, Q("90 mm")),
    Sketcher.Constraint("DistanceY", -1, 1, 0, 3, Q("4.75 mm")),
])
sketch13.setExpression("Constraints[2]", "Params.sketch13_diameter")
doc.recompute()
hole5 = body.newObject("PartDesign::Hole", "Hole004")
hole5.Profile = sketch13
hole5.ThreadType = "None"
hole5.setExpression("Diameter", "Params.hole5_diameter")
hole5.DepthType = "Dimension"
hole5.setExpression("Depth", "Params.hole5_depth")
hole5.DrillPoint = "Angled"
hole5.DrillPointAngle = 118
hole5.HoleCutType = "Countersink"
hole5.setExpression("HoleCutDiameter", "Params.hole5_csink_diameter")
hole5.HoleCutCountersinkAngle = 90

# Sketch on XY plane
sketch14 = body.newObject("Sketcher::SketchObject", "Sketch013")
sketch14.AttachmentSupport = (doc.getObject("XY_Plane"), [""])
sketch14.MapMode = "FlatFace"
sketch14.AttachmentOffset = App.Placement(Vector(0, 0, -32), App.Rotation())
sketch14.addGeometry([
    Part.Circle(Vector(90, 4.8, 0), Vector(0, 0, 1), 1.6),
    Part.Circle(Vector(30, 4.8, 0), Vector(0, 0, 1), 1.6),
], False)
sketch14.addConstraint([
    Sketcher.Constraint("Equal", 0, 1),
    Sketcher.Constraint("Horizontal", 0, 3, 1, 3),
    Sketcher.Constraint("Diameter", 0, Q("3.3 mm")),
    Sketcher.Constraint("DistanceX", -1, 1, 0, 3, Q("90 mm")),
    Sketcher.Constraint("DistanceX", -1, 1, 1, 3, Q("30 mm")),
    Sketcher.Constraint("DistanceY", -1, 1, 0, 3, Q("4.75 mm")),
])
sketch14.setExpression("Constraints[2]", "Params.sketch14_diameter")
doc.recompute()
hole6 = body.newObject("PartDesign::Hole", "Hole005")
hole6.Profile = sketch14
hole6.ThreadType = "None"
hole6.setExpression("Diameter", "Params.hole6_diameter")
hole6.DepthType = "Dimension"
hole6.setExpression("Depth", "Params.hole6_depth")
hole6.DrillPoint = "Angled"
hole6.DrillPointAngle = 118
hole6.HoleCutType = "Countersink"
hole6.setExpression("HoleCutDiameter", "Params.hole6_csink_diameter")
hole6.HoleCutCountersinkAngle = 90
hole6.Reversed = True

doc.recompute()
